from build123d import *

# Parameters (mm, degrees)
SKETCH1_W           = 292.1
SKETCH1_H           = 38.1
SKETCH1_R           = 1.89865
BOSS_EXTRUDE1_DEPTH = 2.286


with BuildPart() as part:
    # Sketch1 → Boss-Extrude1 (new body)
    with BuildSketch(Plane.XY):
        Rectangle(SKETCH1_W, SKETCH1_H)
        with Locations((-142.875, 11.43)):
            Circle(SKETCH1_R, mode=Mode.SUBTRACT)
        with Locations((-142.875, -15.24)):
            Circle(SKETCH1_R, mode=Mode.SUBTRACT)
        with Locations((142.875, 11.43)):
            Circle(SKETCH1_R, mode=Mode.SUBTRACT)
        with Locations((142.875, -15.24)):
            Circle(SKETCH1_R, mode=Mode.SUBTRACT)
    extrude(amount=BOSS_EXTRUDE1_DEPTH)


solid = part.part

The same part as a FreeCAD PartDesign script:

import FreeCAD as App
import Part
import Sketcher

V = App.Vector
Q = App.Units.Quantity

doc = App.newDocument("Part")
body = doc.addObject("PartDesign::Body", "Body")

# Sketch on XY plane
sketch1 = doc.addObject("Sketcher::SketchObject", "Sketch")
body.addObject(sketch1)
sketch1.AttachmentSupport = (doc.XY_Plane, [""])
sketch1.MapMode = "FlatFace"
sketch1.addGeometry([
    Part.LineSegment(V(-146.1, 19.1, 0), V(-146.1, -19.1, 0)),  # 0
    Part.LineSegment(V(-146.1, -19.1, 0), V(146.1, -19.1, 0)),  # 1
    Part.LineSegment(V(146.1, -19.1, 0), V(146.1, 19.1, 0)),  # 2
    Part.LineSegment(V(146.1, 19.1, 0), V(-146.1, 19.1, 0)),  # 3
    Part.Circle(V(-142.9, -15.2, 0), V(0, 0, 1), 1.9),  # 4
    Part.Circle(V(142.9, -15.2, 0), V(0, 0, 1), 1.9),  # 5
    Part.Circle(V(-142.9, 11.4, 0), V(0, 0, 1), 1.9),  # 6
    Part.Circle(V(142.9, 11.4, 0), V(0, 0, 1), 1.9),  # 7
], False)
sketch1.addConstraint([
    Sketcher.Constraint("Coincident", 0, 2, 1, 1),
    Sketcher.Constraint("Coincident", 1, 2, 2, 1),
    Sketcher.Constraint("Coincident", 2, 2, 3, 1),
    Sketcher.Constraint("Coincident", 3, 2, 0, 1),
    Sketcher.Constraint("Vertical", 0),
    Sketcher.Constraint("Horizontal", 1),
    Sketcher.Constraint("Vertical", 2),
    Sketcher.Constraint("Horizontal", 3),
    Sketcher.Constraint("Equal", 4, 5),
    Sketcher.Constraint("Equal", 5, 6),
    Sketcher.Constraint("Equal", 6, 7),
    Sketcher.Constraint("Symmetric", 0, 2, 2, 2, -1, 1),
    Sketcher.Constraint("Symmetric", 4, 3, 5, 3, -2),
    Sketcher.Constraint("Symmetric", 6, 3, 7, 3, -2),
    Sketcher.Constraint("Vertical", 4, 3, 6, 3),
    Sketcher.Constraint("DistanceX", 1, 1, 1, 2, Q("11.5 in")),
    Sketcher.Constraint("DistanceY", 0, 2, 0, 1, Q("1.5 in")),
    Sketcher.Constraint("Diameter", 4, Q("0.1495 in")),
    Sketcher.Constraint("DistanceY", 4, 3, -1, 1, Q("0.6 in")),
    Sketcher.Constraint("DistanceY", 0, 2, 6, 3, Q("1.2 in")),
    Sketcher.Constraint("DistanceX", 4, 3, 5, 3, Q("11.25 in")),
])
pad1 = doc.addObject("PartDesign::Pad", "Pad")
body.addObject(pad1)
pad1.Profile = sketch1
pad1.Length = Q("0.09 in")

doc.recompute()
